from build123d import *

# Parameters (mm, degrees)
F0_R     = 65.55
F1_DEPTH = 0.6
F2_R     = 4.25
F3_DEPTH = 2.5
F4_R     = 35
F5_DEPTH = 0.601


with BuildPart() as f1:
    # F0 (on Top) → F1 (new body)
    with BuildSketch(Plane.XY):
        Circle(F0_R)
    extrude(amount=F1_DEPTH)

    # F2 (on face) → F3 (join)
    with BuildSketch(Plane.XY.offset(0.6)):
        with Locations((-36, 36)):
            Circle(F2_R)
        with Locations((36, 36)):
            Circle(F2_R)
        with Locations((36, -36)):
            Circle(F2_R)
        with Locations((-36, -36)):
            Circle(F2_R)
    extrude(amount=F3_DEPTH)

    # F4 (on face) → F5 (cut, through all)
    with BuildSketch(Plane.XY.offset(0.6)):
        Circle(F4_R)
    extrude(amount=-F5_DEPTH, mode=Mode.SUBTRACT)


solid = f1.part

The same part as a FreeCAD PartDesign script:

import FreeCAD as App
import Part
import Sketcher
Q = App.Units.Quantity

doc = App.newDocument("Part")
body = doc.addObject("PartDesign::Body", "Body")

# Sketch on XY plane
sketch1 = body.newObject("Sketcher::SketchObject", "Sketch")
sketch1.AttachmentSupport = (doc.getObject("XY_Plane"), [""])
sketch1.MapMode = "FlatFace"
sketch1.addGeometry(Part.Circle(App.Vector(0, 0, 0), App.Vector(0, 0, 1), 66), False)
sketch1.addConstraint([
    Sketcher.Constraint("Coincident", 0, 3, -1, 1),
    Sketcher.Constraint("Diameter", 0, Q("131.1 mm")),
])
pad1 = body.newObject("PartDesign::Pad", "Pad")
pad1.Profile = sketch1
pad1.Length = 0.6

# Sketch on XY plane
sketch2 = body.newObject("Sketcher::SketchObject", "Sketch001")
sketch2.AttachmentSupport = (doc.getObject("XY_Plane"), [""])
sketch2.MapMode = "FlatFace"
sketch2.AttachmentOffset = App.Placement(App.Vector(0, 0, 0.6), App.Rotation())
sketch2.addGeometry([
    Part.Circle(App.Vector(-36, 36, 0), App.Vector(0, 0, 1), 4.2),
    Part.Circle(App.Vector(36, 36, 0), App.Vector(0, 0, 1), 4.2),
    Part.Circle(App.Vector(36, -36, 0), App.Vector(0, 0, 1), 4.2),
    Part.Circle(App.Vector(-36, -36, 0), App.Vector(0, 0, 1), 4.2),
], False)
sketch2.addConstraint([
    Sketcher.Constraint("Equal", 0, 1),
    Sketcher.Constraint("Equal", 1, 2),
    Sketcher.Constraint("Equal", 2, 3),
    Sketcher.Constraint("Symmetric", 0, 3, 2, 3, -1, 1),
    Sketcher.Constraint("Symmetric", 1, 3, 3, 3, -1, 1),
    Sketcher.Constraint("Symmetric", 0, 3, 1, 3, -2),
    Sketcher.Constraint("Diameter", 0, Q("8.5 mm")),
    Sketcher.Constraint("DistanceX", 0, 3, -1, 1, Q("36 mm")),
    Sketcher.Constraint("DistanceY", -1, 1, 0, 3, Q("36 mm")),
])
pad2 = body.newObject("PartDesign::Pad", "Pad001")
pad2.Profile = sketch2
pad2.Length = 2.5

# Sketch on XY plane
sketch3 = body.newObject("Sketcher::SketchObject", "Sketch002")
sketch3.AttachmentSupport = (doc.getObject("XY_Plane"), [""])
sketch3.MapMode = "FlatFace"
sketch3.AttachmentOffset = App.Placement(App.Vector(0, 0, 0.6), App.Rotation())
sketch3.addGeometry(Part.Circle(App.Vector(0, 0, 0), App.Vector(0, 0, 1), 35), False)
sketch3.addConstraint([
    Sketcher.Constraint("Coincident", 0, 3, -1, 1),
    Sketcher.Constraint("Diameter", 0, Q("70 mm")),
])
pocket1 = body.newObject("PartDesign::Pocket", "Pocket")
pocket1.Profile = sketch3
pocket1.Type = "ThroughAll"

doc.recompute()
